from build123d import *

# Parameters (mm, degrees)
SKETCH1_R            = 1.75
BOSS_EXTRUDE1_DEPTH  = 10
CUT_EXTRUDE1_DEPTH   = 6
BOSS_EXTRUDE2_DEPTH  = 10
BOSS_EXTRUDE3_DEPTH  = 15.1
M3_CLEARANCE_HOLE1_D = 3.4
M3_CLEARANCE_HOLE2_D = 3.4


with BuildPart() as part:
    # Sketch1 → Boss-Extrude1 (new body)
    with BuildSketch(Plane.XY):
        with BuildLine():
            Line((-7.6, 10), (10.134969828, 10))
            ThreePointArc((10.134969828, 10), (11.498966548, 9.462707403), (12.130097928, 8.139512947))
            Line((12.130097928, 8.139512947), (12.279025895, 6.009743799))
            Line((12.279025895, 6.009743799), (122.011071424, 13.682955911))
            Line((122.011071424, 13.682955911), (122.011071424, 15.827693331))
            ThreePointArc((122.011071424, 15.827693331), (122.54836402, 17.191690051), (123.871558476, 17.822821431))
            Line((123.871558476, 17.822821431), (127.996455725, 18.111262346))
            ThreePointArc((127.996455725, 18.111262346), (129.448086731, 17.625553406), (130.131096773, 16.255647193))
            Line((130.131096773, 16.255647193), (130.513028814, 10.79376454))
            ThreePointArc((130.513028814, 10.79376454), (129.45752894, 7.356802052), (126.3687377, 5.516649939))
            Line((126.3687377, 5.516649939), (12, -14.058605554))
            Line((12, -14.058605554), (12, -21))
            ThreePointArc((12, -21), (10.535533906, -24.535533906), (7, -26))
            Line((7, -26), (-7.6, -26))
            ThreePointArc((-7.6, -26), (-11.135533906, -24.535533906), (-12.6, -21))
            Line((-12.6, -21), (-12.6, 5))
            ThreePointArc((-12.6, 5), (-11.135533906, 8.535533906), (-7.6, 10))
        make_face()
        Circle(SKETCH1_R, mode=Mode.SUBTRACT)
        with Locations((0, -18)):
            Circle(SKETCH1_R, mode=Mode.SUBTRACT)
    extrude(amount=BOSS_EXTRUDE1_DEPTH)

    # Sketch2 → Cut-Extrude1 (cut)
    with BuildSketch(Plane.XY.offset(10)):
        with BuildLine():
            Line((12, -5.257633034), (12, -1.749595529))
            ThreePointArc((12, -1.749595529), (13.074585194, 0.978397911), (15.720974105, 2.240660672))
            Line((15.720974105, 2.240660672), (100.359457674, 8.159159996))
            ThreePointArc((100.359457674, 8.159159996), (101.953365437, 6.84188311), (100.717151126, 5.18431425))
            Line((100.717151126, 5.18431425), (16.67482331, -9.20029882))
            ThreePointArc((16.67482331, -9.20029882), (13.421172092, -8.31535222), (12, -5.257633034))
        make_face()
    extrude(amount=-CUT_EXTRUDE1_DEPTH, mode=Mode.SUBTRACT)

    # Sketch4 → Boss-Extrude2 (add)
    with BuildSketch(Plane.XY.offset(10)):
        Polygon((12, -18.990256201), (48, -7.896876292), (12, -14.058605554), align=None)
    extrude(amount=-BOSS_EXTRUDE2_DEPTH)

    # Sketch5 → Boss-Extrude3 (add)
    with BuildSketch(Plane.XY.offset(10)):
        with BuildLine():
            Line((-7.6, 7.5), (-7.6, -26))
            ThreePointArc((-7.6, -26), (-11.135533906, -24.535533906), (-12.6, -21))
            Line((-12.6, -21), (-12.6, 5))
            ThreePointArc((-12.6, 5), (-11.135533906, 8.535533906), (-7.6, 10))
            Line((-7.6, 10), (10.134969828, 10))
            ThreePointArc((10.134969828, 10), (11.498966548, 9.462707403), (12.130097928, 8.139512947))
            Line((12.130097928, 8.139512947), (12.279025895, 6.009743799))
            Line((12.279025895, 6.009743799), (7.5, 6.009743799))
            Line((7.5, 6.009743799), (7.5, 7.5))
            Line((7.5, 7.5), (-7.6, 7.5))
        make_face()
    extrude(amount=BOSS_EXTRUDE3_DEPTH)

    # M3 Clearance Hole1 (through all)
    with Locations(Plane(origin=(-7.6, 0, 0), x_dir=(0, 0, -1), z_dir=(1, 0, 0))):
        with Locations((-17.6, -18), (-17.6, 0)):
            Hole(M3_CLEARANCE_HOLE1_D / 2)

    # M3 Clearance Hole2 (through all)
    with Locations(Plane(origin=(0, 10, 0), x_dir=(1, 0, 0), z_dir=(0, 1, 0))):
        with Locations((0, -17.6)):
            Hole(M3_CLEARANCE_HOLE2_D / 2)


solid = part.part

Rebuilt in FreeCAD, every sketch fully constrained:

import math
import FreeCAD as App
import Part
import Sketcher

V = App.Vector
Q = App.Units.Quantity

doc = App.newDocument("Part")
params = doc.addObject("Spreadsheet::Sheet", "Params")
for row, (alias, value) in enumerate([
    ("sketch1_radius", "5 mm"),
    ("sketch1_radius2", "2 mm"),
    ("sketch1_diameter", "3.5 mm"),
    ("sketch1_height", "26 mm"),
    ("sketch1_length", "110 mm"),
    ("pad1_length", "10 mm"),
    ("sketch2_radius", "4 mm"),
    ("sketch2_radius2", "4 mm"),
    ("sketch2_radius3", "1.5 mm"),
    ("pocket1_length", "6 mm"),
    ("pad2_length", "10 mm"),
    ("sketch4_radius", "2 mm"),
    ("sketch4_radius2", "5 mm"),
    ("sketch4_height", "26 mm"),
    ("sketch4_width", "15.1 mm"),
    ("sketch4_height2", "33.5 mm"),
    ("pad3_length", "15.1 mm"),
    ("sketch5_diameter", "3.4 mm"),
    ("hole_diameter", "3.4 mm"),
    ("sketch6_diameter", "3.4 mm"),
    ("hole2_diameter", "3.4 mm"),
], start=1):
    params.set(f"A{row}", alias)
    params.set(f"B{row}", "=" + value)
    params.setAlias(f"B{row}", alias)

body = doc.addObject("PartDesign::Body", "Body")

# Sketch on XY plane
sketch1 = doc.addObject("Sketcher::SketchObject", "Sketch")
body.addObject(sketch1)
sketch1.AttachmentSupport = (doc.XY_Plane, [""])
sketch1.MapMode = "FlatFace"
sketch1.addGeometry(Part.LineSegment(V(10.13497, 10, 0), V(-7.6, 10, 0)), False)
sketch1.addGeometry(Part.ArcOfCircle(Part.Circle(V(-7.6, 5, 0), V(0, 0, 1), 5), math.radians(90), math.radians(180)), False)
sketch1.addGeometry(Part.LineSegment(V(-12.6, 5, 0), V(-12.6, -21, 0)), False)
sketch1.addGeometry(Part.ArcOfCircle(Part.Circle(V(-7.6, -21, 0), V(0, 0, 1), 5), math.radians(180), math.radians(270)), False)
sketch1.addGeometry(Part.LineSegment(V(-7.6, -26, 0), V(7, -26, 0)), False)
sketch1.addGeometry(Part.ArcOfCircle(Part.Circle(V(7, -21, 0), V(0, 0, 1), 5), math.radians(-90), math.radians(0)), False)
sketch1.addGeometry(Part.LineSegment(V(12, -21, 0), V(12, -14.058606, 0)), False)
sketch1.addGeometry(Part.LineSegment(V(12, -14.058606, 0), V(126.368738, 5.51665, 0)), False)
sketch1.addGeometry(Part.ArcOfCircle(Part.Circle(V(125.525209, 10.444982, 0), V(0, 0, 1), 5), math.radians(-80.287418), math.radians(4)), False)
sketch1.addGeometry(Part.LineSegment(V(130.513029, 10.793765, 0), V(130.131097, 16.255647, 0)), False)
sketch1.addGeometry(Part.ArcOfCircle(Part.Circle(V(128.135969, 16.116134, 0), V(0, 0, 1), 2), math.radians(4), math.radians(94)), False)
sketch1.addGeometry(Part.LineSegment(V(127.996456, 18.111262, 0), V(123.871558, 17.822821, 0)), False)
sketch1.addGeometry(Part.ArcOfCircle(Part.Circle(V(124.011071, 15.827693, 0), V(0, 0, 1), 2), math.radians(94), math.radians(180)), False)
sketch1.addGeometry(Part.LineSegment(V(122.011071, 15.827693, 0), V(122.011071, 13.682956, 0)), False)
sketch1.addGeometry(Part.LineSegment(V(122.011071, 13.682956, 0), V(12.279026, 6.009744, 0)), False)
sketch1.addGeometry(Part.LineSegment(V(12.279026, 6.009744, 0), V(12.130098, 8.139513, 0)), False)
sketch1.addGeometry(Part.ArcOfCircle(Part.Circle(V(10.13497, 8, 0), V(0, 0, 1), 2), math.radians(4), math.radians(90)), False)
sketch1.addGeometry(Part.Circle(V(0, -18, 0), V(0, 0, 1), 1.75), False)
sketch1.addGeometry(Part.Circle(V(0, 0, 0), V(0, 0, 1), 1.75), False)
sketch1.addConstraint(Sketcher.Constraint("Tangent", 0, 2, 1, 1))
sketch1.addConstraint(Sketcher.Constraint("Tangent", 1, 2, 2, 1))
sketch1.addConstraint(Sketcher.Constraint("Tangent", 2, 2, 3, 1))
sketch1.addConstraint(Sketcher.Constraint("Tangent", 3, 2, 4, 1))
sketch1.addConstraint(Sketcher.Constraint("Tangent", 4, 2, 5, 1))
sketch1.addConstraint(Sketcher.Constraint("Tangent", 5, 2, 6, 1))
sketch1.addConstraint(Sketcher.Constraint("Coincident", 6, 2, 7, 1))
sketch1.addConstraint(Sketcher.Constraint("Tangent", 7, 2, 8, 1))
sketch1.addConstraint(Sketcher.Constraint("Tangent", 8, 2, 9, 1))
sketch1.addConstraint(Sketcher.Constraint("Tangent", 9, 2, 10, 1))
sketch1.addConstraint(Sketcher.Constraint("Tangent", 10, 2, 11, 1))
sketch1.addConstraint(Sketcher.Constraint("Tangent", 11, 2, 12, 1))
sketch1.addConstraint(Sketcher.Constraint("Tangent", 12, 2, 13, 1))
sketch1.addConstraint(Sketcher.Constraint("Coincident", 13, 2, 14, 1))
sketch1.addConstraint(Sketcher.Constraint("Coincident", 14, 2, 15, 1))
sketch1.addConstraint(Sketcher.Constraint("Tangent", 15, 2, 16, 1))
sketch1.addConstraint(Sketcher.Constraint("Tangent", 16, 2, 0, 1))
sketch1.addConstraint(Sketcher.Constraint("Horizontal", 0))
sketch1.addConstraint(Sketcher.Constraint("Vertical", 2))
sketch1.addConstraint(Sketcher.Constraint("Horizontal", 4))
sketch1.addConstraint(Sketcher.Constraint("Vertical", 6))
sketch1.addConstraint(Sketcher.Constraint("Vertical", 13))
sketch1.addConstraint(Sketcher.Constraint("Coincident", 18, 3, -1, 1))
sketch1.addConstraint(Sketcher.Constraint("Equal", 1, 3))
sketch1.addConstraint(Sketcher.Constraint("Equal", 3, 5))
sketch1.addConstraint(Sketcher.Constraint("Equal", 5, 8))
sketch1.addConstraint(Sketcher.Constraint("Equal", 10, 12))
sketch1.addConstraint(Sketcher.Constraint("Equal", 12, 16))
sketch1.addConstraint(Sketcher.Constraint("Equal", 17, 18))
sketch1.addConstraint(Sketcher.Constraint("PointOnObject", 17, 3, -2))
sketch1.addConstraint(Sketcher.Constraint("Perpendicular", 9, 11))
sketch1.addConstraint(Sketcher.Constraint("Parallel", 11, 14))
sketch1.addConstraint(Sketcher.Constraint("Perpendicular", 14, 15))
sketch1.addConstraint(Sketcher.Constraint("Radius", 1, 5.0))
sketch1.addConstraint(Sketcher.Constraint("Radius", 10, 2.0))
sketch1.addConstraint(Sketcher.Constraint("Diameter", 17, 3.5))
sketch1.addConstraint(Sketcher.Constraint("DistanceY", 2, 2, 2, 1, 26.0))
sketch1.addConstraint(Sketcher.Constraint("Angle", 9, Q("94 deg")))
sketch1.addConstraint(Sketcher.Constraint("Distance", 14, 110.0))
sketch1.addConstraint(Sketcher.Constraint("DistanceX", 4, 1, 4, 2, 14.6))
sketch1.addConstraint(Sketcher.Constraint("DistanceY", -1, 1, 1, 3, 5.0))
sketch1.addConstraint(Sketcher.Constraint("DistanceX", -1, 1, 5, 3, 7.0))
sketch1.addConstraint(Sketcher.Constraint("DistanceY", 17, 3, -1, 1, 18.0))
sketch1.addConstraint(Sketcher.Constraint("DistanceX", 0, 2, 0, 1, 17.73497))
sketch1.addConstraint(Sketcher.Constraint("DistanceX", 16, 3, 12, 3, 113.876102))
sketch1.addConstraint(Sketcher.Constraint("Distance", 9, 5.47522))
sketch1.addConstraint(Sketcher.Constraint("Distance", 11, 4.13497))
sketch1.addConstraint(Sketcher.Constraint("DistanceY", 6, 1, 6, 2, 6.941394))
sketch1.addConstraint(Sketcher.Constraint("DistanceY", 13, 2, 13, 1, 2.144737))
sketch1.setExpression("Constraints[33]", "Params.sketch1_radius")
sketch1.setExpression("Constraints[34]", "Params.sketch1_radius2")
sketch1.setExpression("Constraints[35]", "Params.sketch1_diameter")
sketch1.setExpression("Constraints[36]", "Params.sketch1_height")
sketch1.setExpression("Constraints[38]", "Params.sketch1_length")
pad1 = doc.addObject("PartDesign::Pad", "Pad")
body.addObject(pad1)
pad1.Profile = sketch1
pad1.setExpression("Length", "Params.pad1_length")

# Sketch on XY plane
sketch2 = doc.addObject("Sketcher::SketchObject", "Sketch001")
body.addObject(sketch2)
sketch2.AttachmentSupport = (doc.XY_Plane, [""])
sketch2.MapMode = "FlatFace"
sketch2.AttachmentOffset = App.Placement(V(0, 0, 10), App.Rotation())
sketch2.addGeometry(Part.LineSegment(V(12, -1.749596, 0), V(12, -5.257633, 0)), False)
sketch2.addGeometry(Part.ArcOfCircle(Part.Circle(V(16, -5.257633, 0), V(0, 0, 1), 4), math.radians(180), math.radians(279.712582)), False)
sketch2.addGeometry(Part.LineSegment(V(16.674823, -9.200299, 0), V(100.717151, 5.184314, 0)), False)
sketch2.addGeometry(Part.ArcOfCircle(Part.Circle(V(100.464092, 6.662814, 0), V(0, 0, 1), 1.5), math.radians(-80.287418), math.radians(94)), False)
sketch2.addGeometry(Part.LineSegment(V(100.359458, 8.15916, 0), V(15.720974, 2.240661, 0)), False)
sketch2.addGeometry(Part.ArcOfCircle(Part.Circle(V(16, -1.749596, 0), V(0, 0, 1), 4), math.radians(94), math.radians(180)), False)
sketch2.addConstraint(Sketcher.Constraint("Coincident", 0, 2, 1, 1))
sketch2.addConstraint(Sketcher.Constraint("Coincident", 1, 2, 2, 1))
sketch2.addConstraint(Sketcher.Constraint("Coincident", 2, 2, 3, 1))
sketch2.addConstraint(Sketcher.Constraint("Coincident", 3, 2, 4, 1))
sketch2.addConstraint(Sketcher.Constraint("Coincident", 4, 2, 5, 1))
sketch2.addConstraint(Sketcher.Constraint("Coincident", 5, 2, 0, 1))
sketch2.addConstraint(Sketcher.Constraint("Vertical", 0))
sketch2.addConstraint(Sketcher.Constraint("Radius", 1, 4.0))
sketch2.addConstraint(Sketcher.Constraint("Radius", 5, 4.0))
sketch2.addConstraint(Sketcher.Constraint("Radius", 3, 1.5))
sketch2.addConstraint(Sketcher.Constraint("DistanceX", -1, 1, 1, 3, 16.0))
sketch2.addConstraint(Sketcher.Constraint("DistanceY", 1, 2, -1, 1, 9.200299))
sketch2.addConstraint(Sketcher.Constraint("DistanceY", 2, 2, 3, 3, 1.4785))
sketch2.addConstraint(Sketcher.Constraint("DistanceY", 4, 2, 3, 2, 5.918499))
sketch2.addConstraint(Sketcher.Constraint("Distance", 2, 85.264471))
sketch2.addConstraint(Sketcher.Constraint("DistanceY", 0, 2, 0, 1, 3.508038))
sketch2.addConstraint(Sketcher.Constraint("DistanceX", -1, 1, 2, 2, 100.717151))
sketch2.addConstraint(Sketcher.Constraint("DistanceY", -1, 1, 3, 2, 8.15916))
sketch2.addConstraint(Sketcher.Constraint("DistanceY", 5, 3, 3, 3, 8.412409))
sketch2.addConstraint(Sketcher.Constraint("DistanceX", 4, 2, 1, 2, 0.953849))
sketch2.addConstraint(Sketcher.Constraint("DistanceY", 0, 2, -1, 1, 5.257633))
sketch2.setExpression("Constraints[7]", "Params.sketch2_radius")
sketch2.setExpression("Constraints[8]", "Params.sketch2_radius2")
sketch2.setExpression("Constraints[9]", "Params.sketch2_radius3")
pocket1 = doc.addObject("PartDesign::Pocket", "Pocket")
body.addObject(pocket1)
pocket1.Profile = sketch2
pocket1.setExpression("Length", "Params.pocket1_length")

# Sketch on XY plane
sketch3 = doc.addObject("Sketcher::SketchObject", "Sketch002")
body.addObject(sketch3)
sketch3.AttachmentSupport = (doc.XY_Plane, [""])
sketch3.MapMode = "FlatFace"
sketch3.AttachmentOffset = App.Placement(V(0, 0, 10), App.Rotation())
sketch3.addGeometry(Part.LineSegment(V(12, -18.990256, 0), V(48, -7.896876, 0)), False)
sketch3.addGeometry(Part.LineSegment(V(48, -7.896876, 0), V(12, -14.058606, 0)), False)
sketch3.addGeometry(Part.LineSegment(V(12, -14.058606, 0), V(12, -18.990256, 0)), False)
sketch3.addConstraint(Sketcher.Constraint("Coincident", 0, 2, 1, 1))
sketch3.addConstraint(Sketcher.Constraint("Coincident", 1, 2, 2, 1))
sketch3.addConstraint(Sketcher.Constraint("Coincident", 2, 2, 0, 1))
sketch3.addConstraint(Sketcher.Constraint("Vertical", 2))
sketch3.addConstraint(Sketcher.Constraint("DistanceX", -1, 1, 0, 2, 48.0))
sketch3.addConstraint(Sketcher.Constraint("DistanceX", -1, 1, 1, 2, 12.0))
sketch3.addConstraint(Sketcher.Constraint("DistanceY", 2, 2, 2, 1, 4.931651))
sketch3.addConstraint(Sketcher.Constraint("Distance", 1, 36.523512))
sketch3.addConstraint(Sketcher.Constraint("DistanceY", 0, 2, -1, 1, 7.896876))
pad2 = doc.addObject("PartDesign::Pad", "Pad001")
body.addObject(pad2)
pad2.Profile = sketch3
pad2.setExpression("Length", "Params.pad2_length")
pad2.Reversed = True

# Sketch on XY plane
sketch4 = doc.addObject("Sketcher::SketchObject", "Sketch003")
body.addObject(sketch4)
sketch4.AttachmentSupport = (doc.XY_Plane, [""])
sketch4.MapMode = "FlatFace"
sketch4.AttachmentOffset = App.Placement(V(0, 0, 10), App.Rotation())
sketch4.addGeometry(Part.LineSegment(V(-7.6, -26, 0), V(-7.6, 7.5, 0)), False)
sketch4.addGeometry(Part.LineSegment(V(-7.6, 7.5, 0), V(7.5, 7.5, 0)), False)
sketch4.addGeometry(Part.LineSegment(V(7.5, 7.5, 0), V(7.5, 6.009744, 0)), False)
sketch4.addGeometry(Part.LineSegment(V(7.5, 6.009744, 0), V(12.279026, 6.009744, 0)), False)
sketch4.addGeometry(Part.LineSegment(V(12.279026, 6.009744, 0), V(12.130098, 8.139513, 0)), False)
sketch4.addGeometry(Part.ArcOfCircle(Part.Circle(V(10.13497, 8, 0), V(0, 0, 1), 2), math.radians(4), math.radians(90)), False)
sketch4.addGeometry(Part.LineSegment(V(10.13497, 10, 0), V(-7.6, 10, 0)), False)
sketch4.addGeometry(Part.ArcOfCircle(Part.Circle(V(-7.6, 5, 0), V(0, 0, 1), 5), math.radians(90), math.radians(180)), False)
sketch4.addGeometry(Part.LineSegment(V(-12.6, 5, 0), V(-12.6, -21, 0)), False)
sketch4.addGeometry(Part.ArcOfCircle(Part.Circle(V(-7.6, -21, 0), V(0, 0, 1), 5), math.radians(180), math.radians(270)), False)
sketch4.addConstraint(Sketcher.Constraint("Coincident", 0, 2, 1, 1))
sketch4.addConstraint(Sketcher.Constraint("Coincident", 1, 2, 2, 1))
sketch4.addConstraint(Sketcher.Constraint("Coincident", 2, 2, 3, 1))
sketch4.addConstraint(Sketcher.Constraint("Coincident", 3, 2, 4, 1))
sketch4.addConstraint(Sketcher.Constraint("Tangent", 4, 2, 5, 1))
sketch4.addConstraint(Sketcher.Constraint("Tangent", 5, 2, 6, 1))
sketch4.addConstraint(Sketcher.Constraint("Tangent", 6, 2, 7, 1))
sketch4.addConstraint(Sketcher.Constraint("Tangent", 7, 2, 8, 1))
sketch4.addConstraint(Sketcher.Constraint("Tangent", 8, 2, 9, 1))
sketch4.addConstraint(Sketcher.Constraint("Coincident", 9, 2, 0, 1))
sketch4.addConstraint(Sketcher.Constraint("Vertical", 0))
sketch4.addConstraint(Sketcher.Constraint("Horizontal", 1))
sketch4.addConstraint(Sketcher.Constraint("Vertical", 2))
sketch4.addConstraint(Sketcher.Constraint("Horizontal", 3))
sketch4.addConstraint(Sketcher.Constraint("Horizontal", 6))
sketch4.addConstraint(Sketcher.Constraint("Vertical", 8))
sketch4.addConstraint(Sketcher.Constraint("Equal", 7, 9))
sketch4.addConstraint(Sketcher.Constraint("Vertical", 9, 3, 0, 2))
sketch4.addConstraint(Sketcher.Constraint("Radius", 5, 2.0))
sketch4.addConstraint(Sketcher.Constraint("Radius", 7, 5.0))
sketch4.addConstraint(Sketcher.Constraint("DistanceY", 8, 2, 8, 1, 26.0))
sketch4.addConstraint(Sketcher.Constraint("Angle", 4, Q("94 deg")))
sketch4.addConstraint(Sketcher.Constraint("DistanceX", 1, 1, 1, 2, 15.1))
sketch4.addConstraint(Sketcher.Constraint("DistanceY", 0, 1, 0, 2, 33.5))
sketch4.addConstraint(Sketcher.Constraint("DistanceY", -1, 1, 5, 3, 8.0))
sketch4.addConstraint(Sketcher.Constraint("DistanceX", 7, 3, -1, 1, 7.6))
sketch4.addConstraint(Sketcher.Constraint("DistanceX", 6, 2, 6, 1, 17.73497))
sketch4.addConstraint(Sketcher.Constraint("Distance", 4, 2.13497))
sketch4.setExpression("Constraints[18]", "Params.sketch4_radius")
sketch4.setExpression("Constraints[19]", "Params.sketch4_radius2")
sketch4.setExpression("Constraints[20]", "Params.sketch4_height")
sketch4.setExpression("Constraints[22]", "Params.sketch4_width")
sketch4.setExpression("Constraints[23]", "Params.sketch4_height2")
pad3 = doc.addObject("PartDesign::Pad", "Pad002")
body.addObject(pad3)
pad3.Profile = sketch4
pad3.setExpression("Length", "Params.pad3_length")

# Sketch on YZ plane
sketch5 = doc.addObject("Sketcher::SketchObject", "Sketch004")
body.addObject(sketch5)
sketch5.AttachmentSupport = (doc.YZ_Plane, [""])
sketch5.MapMode = "FlatFace"
sketch5.AttachmentOffset = App.Placement(V(0, 0, -7.6), App.Rotation())
sketch5.addGeometry(Part.Circle(V(-18, 17.6, 0), V(0, 0, 1), 1.7), False)
sketch5.addGeometry(Part.Circle(V(0, 17.6, 0), V(0, 0, 1), 1.7), False)
sketch5.addConstraint(Sketcher.Constraint("Equal", 0, 1))
sketch5.addConstraint(Sketcher.Constraint("PointOnObject", 1, 3, -2))
sketch5.addConstraint(Sketcher.Constraint("Horizontal", 0, 3, 1, 3))
sketch5.addConstraint(Sketcher.Constraint("Diameter", 0, 3.4))
sketch5.addConstraint(Sketcher.Constraint("DistanceX", 0, 3, -1, 1, 18.0))
sketch5.addConstraint(Sketcher.Constraint("DistanceY", -1, 1, 0, 3, 17.6))
sketch5.setExpression("Constraints[3]", "Params.sketch5_diameter")
doc.recompute()
hole = doc.addObject("PartDesign::Hole", "Hole")
body.addObject(hole)
hole.Profile = sketch5
hole.ThreadType = "None"
hole.setExpression("Diameter", "Params.hole_diameter")
hole.DepthType = "ThroughAll"

# Sketch on XZ plane
sketch6 = doc.addObject("Sketcher::SketchObject", "Sketch005")
body.addObject(sketch6)
sketch6.AttachmentSupport = (doc.XZ_Plane, [""])
sketch6.MapMode = "FlatFace"
sketch6.AttachmentOffset = App.Placement(V(0, 0, -10), App.Rotation())
sketch6.addGeometry(Part.Circle(V(0, 17.6, 0), V(0, 0, 1), 1.7), False)
sketch6.addConstraint(Sketcher.Constraint("PointOnObject", 0, 3, -2))
sketch6.addConstraint(Sketcher.Constraint("Diameter", 0, 3.4))
sketch6.addConstraint(Sketcher.Constraint("DistanceY", -1, 1, 0, 3, 17.6))
sketch6.setExpression("Constraints[1]", "Params.sketch6_diameter")
doc.recompute()
hole2 = doc.addObject("PartDesign::Hole", "Hole001")
body.addObject(hole2)
hole2.Profile = sketch6
hole2.ThreadType = "None"
hole2.setExpression("Diameter", "Params.hole2_diameter")
hole2.DepthType = "ThroughAll"
hole2.Reversed = True

doc.recompute()
